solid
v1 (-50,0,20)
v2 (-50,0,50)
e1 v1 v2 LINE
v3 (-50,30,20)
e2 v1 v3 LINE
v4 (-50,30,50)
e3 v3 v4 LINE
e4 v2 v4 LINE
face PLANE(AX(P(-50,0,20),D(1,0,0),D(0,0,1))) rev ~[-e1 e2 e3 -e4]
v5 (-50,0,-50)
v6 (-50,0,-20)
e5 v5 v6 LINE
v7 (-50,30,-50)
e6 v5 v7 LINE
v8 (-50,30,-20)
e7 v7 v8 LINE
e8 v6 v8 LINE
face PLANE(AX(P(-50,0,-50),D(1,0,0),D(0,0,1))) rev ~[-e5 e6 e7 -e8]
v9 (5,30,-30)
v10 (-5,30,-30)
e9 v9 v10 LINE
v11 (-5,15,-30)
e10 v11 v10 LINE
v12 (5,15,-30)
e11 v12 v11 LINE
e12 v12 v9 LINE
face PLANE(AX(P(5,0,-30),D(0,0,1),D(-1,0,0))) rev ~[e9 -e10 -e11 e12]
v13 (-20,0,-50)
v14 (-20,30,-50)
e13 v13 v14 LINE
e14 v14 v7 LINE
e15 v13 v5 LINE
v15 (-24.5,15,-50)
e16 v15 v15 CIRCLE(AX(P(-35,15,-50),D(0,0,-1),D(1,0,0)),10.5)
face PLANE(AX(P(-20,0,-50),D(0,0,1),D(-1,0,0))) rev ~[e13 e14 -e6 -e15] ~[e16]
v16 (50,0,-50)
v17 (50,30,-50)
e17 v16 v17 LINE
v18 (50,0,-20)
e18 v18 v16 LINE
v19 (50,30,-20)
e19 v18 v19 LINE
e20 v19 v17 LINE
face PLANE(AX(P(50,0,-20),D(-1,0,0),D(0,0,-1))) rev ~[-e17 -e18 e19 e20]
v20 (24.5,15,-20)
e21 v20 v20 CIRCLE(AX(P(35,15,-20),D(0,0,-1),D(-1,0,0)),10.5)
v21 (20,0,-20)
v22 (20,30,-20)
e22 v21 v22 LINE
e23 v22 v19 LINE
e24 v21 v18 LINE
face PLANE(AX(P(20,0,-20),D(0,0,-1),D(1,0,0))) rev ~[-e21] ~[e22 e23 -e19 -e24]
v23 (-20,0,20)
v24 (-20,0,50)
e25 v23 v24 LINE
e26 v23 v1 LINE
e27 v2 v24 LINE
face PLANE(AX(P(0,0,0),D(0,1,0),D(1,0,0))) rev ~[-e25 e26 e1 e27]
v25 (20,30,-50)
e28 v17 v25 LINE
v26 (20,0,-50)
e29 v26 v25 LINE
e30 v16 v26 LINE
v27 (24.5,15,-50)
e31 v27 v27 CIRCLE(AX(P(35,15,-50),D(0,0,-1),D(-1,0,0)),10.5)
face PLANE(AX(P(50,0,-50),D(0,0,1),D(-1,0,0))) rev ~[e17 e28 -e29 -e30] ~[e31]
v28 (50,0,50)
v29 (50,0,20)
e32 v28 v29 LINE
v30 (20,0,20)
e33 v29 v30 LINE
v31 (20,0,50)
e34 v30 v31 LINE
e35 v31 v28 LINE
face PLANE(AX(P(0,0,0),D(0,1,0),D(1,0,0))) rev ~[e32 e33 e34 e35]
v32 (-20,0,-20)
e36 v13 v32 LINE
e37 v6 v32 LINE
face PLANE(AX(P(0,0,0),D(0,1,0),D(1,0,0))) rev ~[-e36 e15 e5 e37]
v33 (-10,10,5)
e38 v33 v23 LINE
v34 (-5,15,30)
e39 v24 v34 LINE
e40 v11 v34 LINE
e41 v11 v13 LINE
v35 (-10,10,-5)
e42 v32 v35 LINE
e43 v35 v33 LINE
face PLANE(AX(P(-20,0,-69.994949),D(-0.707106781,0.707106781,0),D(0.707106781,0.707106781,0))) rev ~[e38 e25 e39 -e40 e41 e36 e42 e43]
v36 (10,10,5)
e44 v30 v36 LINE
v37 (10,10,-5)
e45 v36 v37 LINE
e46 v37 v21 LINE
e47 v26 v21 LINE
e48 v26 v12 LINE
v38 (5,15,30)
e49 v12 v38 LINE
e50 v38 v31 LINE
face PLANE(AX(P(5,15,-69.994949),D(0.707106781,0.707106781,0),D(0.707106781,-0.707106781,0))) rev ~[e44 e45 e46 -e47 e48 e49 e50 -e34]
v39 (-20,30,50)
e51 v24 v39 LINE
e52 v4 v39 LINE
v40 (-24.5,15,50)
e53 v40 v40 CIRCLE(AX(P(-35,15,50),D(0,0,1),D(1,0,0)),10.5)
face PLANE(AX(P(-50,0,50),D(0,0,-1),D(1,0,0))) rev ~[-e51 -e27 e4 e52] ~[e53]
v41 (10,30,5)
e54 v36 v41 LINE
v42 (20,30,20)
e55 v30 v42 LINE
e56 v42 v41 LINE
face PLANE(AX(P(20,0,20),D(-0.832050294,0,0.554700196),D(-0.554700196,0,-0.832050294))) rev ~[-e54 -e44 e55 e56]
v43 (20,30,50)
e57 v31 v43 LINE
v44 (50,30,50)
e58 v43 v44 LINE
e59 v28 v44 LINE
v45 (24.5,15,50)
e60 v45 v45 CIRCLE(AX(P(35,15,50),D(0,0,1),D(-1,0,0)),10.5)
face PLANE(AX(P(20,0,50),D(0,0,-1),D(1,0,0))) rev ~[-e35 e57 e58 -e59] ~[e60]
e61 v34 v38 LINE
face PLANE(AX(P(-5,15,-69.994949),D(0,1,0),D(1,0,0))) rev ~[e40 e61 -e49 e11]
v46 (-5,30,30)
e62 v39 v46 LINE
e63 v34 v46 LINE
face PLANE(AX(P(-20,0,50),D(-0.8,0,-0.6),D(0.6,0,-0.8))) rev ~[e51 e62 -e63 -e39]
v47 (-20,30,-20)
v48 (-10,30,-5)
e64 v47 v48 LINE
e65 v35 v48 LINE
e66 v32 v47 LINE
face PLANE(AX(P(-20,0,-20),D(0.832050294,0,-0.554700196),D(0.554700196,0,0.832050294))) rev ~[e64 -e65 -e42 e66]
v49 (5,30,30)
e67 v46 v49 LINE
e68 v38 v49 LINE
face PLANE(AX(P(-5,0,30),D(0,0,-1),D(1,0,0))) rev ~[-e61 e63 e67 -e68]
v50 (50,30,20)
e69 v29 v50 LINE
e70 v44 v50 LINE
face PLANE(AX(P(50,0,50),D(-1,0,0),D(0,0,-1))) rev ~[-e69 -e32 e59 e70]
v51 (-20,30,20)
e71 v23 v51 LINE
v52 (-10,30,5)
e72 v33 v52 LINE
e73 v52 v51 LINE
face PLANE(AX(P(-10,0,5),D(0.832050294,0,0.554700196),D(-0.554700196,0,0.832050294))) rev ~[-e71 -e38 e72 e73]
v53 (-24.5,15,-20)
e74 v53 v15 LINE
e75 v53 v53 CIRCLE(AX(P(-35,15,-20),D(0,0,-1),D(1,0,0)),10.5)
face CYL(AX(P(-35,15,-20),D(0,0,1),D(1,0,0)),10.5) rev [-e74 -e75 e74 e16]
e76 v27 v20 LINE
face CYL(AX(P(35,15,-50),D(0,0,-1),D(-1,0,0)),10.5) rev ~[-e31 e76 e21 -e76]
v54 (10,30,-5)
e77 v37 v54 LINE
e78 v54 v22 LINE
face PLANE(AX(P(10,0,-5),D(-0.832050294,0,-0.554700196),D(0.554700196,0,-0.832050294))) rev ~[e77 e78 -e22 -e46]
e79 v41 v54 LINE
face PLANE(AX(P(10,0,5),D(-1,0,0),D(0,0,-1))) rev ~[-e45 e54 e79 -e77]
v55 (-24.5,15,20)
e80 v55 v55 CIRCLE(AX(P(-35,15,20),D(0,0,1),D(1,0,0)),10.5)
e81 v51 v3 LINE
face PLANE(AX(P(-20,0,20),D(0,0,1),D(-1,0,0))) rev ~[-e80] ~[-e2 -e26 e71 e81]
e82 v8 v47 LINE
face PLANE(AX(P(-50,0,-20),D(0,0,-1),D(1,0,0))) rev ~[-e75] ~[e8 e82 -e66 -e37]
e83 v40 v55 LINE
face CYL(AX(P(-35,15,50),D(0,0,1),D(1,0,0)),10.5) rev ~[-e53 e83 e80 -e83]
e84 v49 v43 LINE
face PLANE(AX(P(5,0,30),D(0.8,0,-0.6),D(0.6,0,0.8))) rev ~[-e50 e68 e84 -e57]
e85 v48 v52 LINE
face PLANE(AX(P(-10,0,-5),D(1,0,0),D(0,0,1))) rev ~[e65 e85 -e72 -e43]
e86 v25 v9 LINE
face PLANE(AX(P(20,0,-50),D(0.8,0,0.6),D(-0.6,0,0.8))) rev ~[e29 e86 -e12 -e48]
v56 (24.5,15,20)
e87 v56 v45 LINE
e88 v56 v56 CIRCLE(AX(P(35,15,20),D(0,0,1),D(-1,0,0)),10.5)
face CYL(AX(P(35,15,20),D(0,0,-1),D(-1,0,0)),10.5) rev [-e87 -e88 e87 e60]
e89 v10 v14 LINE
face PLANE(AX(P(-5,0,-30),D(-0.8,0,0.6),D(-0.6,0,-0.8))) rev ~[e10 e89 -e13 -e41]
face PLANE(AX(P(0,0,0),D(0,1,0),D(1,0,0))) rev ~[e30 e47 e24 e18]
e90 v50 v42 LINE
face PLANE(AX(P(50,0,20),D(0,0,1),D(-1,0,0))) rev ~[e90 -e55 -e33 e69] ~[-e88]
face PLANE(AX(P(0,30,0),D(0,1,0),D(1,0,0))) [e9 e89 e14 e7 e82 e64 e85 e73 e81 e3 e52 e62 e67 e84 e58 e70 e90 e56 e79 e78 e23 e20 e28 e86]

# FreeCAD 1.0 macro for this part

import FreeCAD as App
import Part
import Sketcher

V = App.Vector
Q = App.Units.Quantity

doc = App.newDocument("Part")
body = doc.addObject("PartDesign::Body", "Body")

# Sketch on XZ plane
sketch1 = body.newObject("Sketcher::SketchObject", "Sketch")
sketch1.AttachmentSupport = (doc.getObject("XZ_Plane"), [""])
sketch1.MapMode = "FlatFace"
sketch1.addGeometry([
    Part.LineSegment(V(-20, -50, 0), V(-50, -50, 0)),  # 0
    Part.LineSegment(V(-50, -50, 0), V(-50, -20, 0)),  # 1
    Part.LineSegment(V(-50, -20, 0), V(-20, -20, 0)),  # 2
    Part.LineSegment(V(-20, -20, 0), V(-10, -5, 0)),  # 3
    Part.LineSegment(V(-10, -5, 0), V(-10, 5, 0)),  # 4
    Part.LineSegment(V(-10, 5, 0), V(-20, 20, 0)),  # 5
    Part.LineSegment(V(-20, 20, 0), V(-50, 20, 0)),  # 6
    Part.LineSegment(V(-50, 20, 0), V(-50, 50, 0)),  # 7
    Part.LineSegment(V(-50, 50, 0), V(-20, 50, 0)),  # 8
    Part.LineSegment(V(-20, 50, 0), V(-5, 30, 0)),  # 9
    Part.LineSegment(V(-5, 30, 0), V(5, 30, 0)),  # 10
    Part.LineSegment(V(5, 30, 0), V(20, 50, 0)),  # 11
    Part.LineSegment(V(20, 50, 0), V(50, 50, 0)),  # 12
    Part.LineSegment(V(50, 50, 0), V(50, 20, 0)),  # 13
    Part.LineSegment(V(50, 20, 0), V(20, 20, 0)),  # 14
    Part.LineSegment(V(20, 20, 0), V(10, 5, 0)),  # 15
    Part.LineSegment(V(10, 5, 0), V(10, -5, 0)),  # 16
    Part.LineSegment(V(10, -5, 0), V(20, -20, 0)),  # 17
    Part.LineSegment(V(20, -20, 0), V(50, -20, 0)),  # 18
    Part.LineSegment(V(50, -20, 0), V(50, -50, 0)),  # 19
    Part.LineSegment(V(50, -50, 0), V(20, -50, 0)),  # 20
    Part.LineSegment(V(20, -50, 0), V(5, -30, 0)),  # 21
    Part.LineSegment(V(5, -30, 0), V(-5, -30, 0)),  # 22
    Part.LineSegment(V(-5, -30, 0), V(-20, -50, 0)),  # 23
], False)
sketch1.addConstraint([
    Sketcher.Constraint("Coincident", 0, 2, 1, 1),
    Sketcher.Constraint("Coincident", 1, 2, 2, 1),
    Sketcher.Constraint("Coincident", 2, 2, 3, 1),
    Sketcher.Constraint("Coincident", 3, 2, 4, 1),
    Sketcher.Constraint("Coincident", 4, 2, 5, 1),
    Sketcher.Constraint("Coincident", 5, 2, 6, 1),
    Sketcher.Constraint("Coincident", 6, 2, 7, 1),
    Sketcher.Constraint("Coincident", 7, 2, 8, 1),
    Sketcher.Constraint("Coincident", 8, 2, 9, 1),
    Sketcher.Constraint("Coincident", 9, 2, 10, 1),
    Sketcher.Constraint("Coincident", 10, 2, 11, 1),
    Sketcher.Constraint("Coincident", 11, 2, 12, 1),
    Sketcher.Constraint("Coincident", 12, 2, 13, 1),
    Sketcher.Constraint("Coincident", 13, 2, 14, 1),
    Sketcher.Constraint("Coincident", 14, 2, 15, 1),
    Sketcher.Constraint("Coincident", 15, 2, 16, 1),
    Sketcher.Constraint("Coincident", 16, 2, 17, 1),
    Sketcher.Constraint("Coincident", 17, 2, 18, 1),
    Sketcher.Constraint("Coincident", 18, 2, 19, 1),
    Sketcher.Constraint("Coincident", 19, 2, 20, 1),
    Sketcher.Constraint("Coincident", 20, 2, 21, 1),
    Sketcher.Constraint("Coincident", 21, 2, 22, 1),
    Sketcher.Constraint("Coincident", 22, 2, 23, 1),
    Sketcher.Constraint("Coincident", 23, 2, 0, 1),
    Sketcher.Constraint("Horizontal", 0),
    Sketcher.Constraint("Vertical", 1),
    Sketcher.Constraint("Horizontal", 2),
    Sketcher.Constraint("Vertical", 4),
    Sketcher.Constraint("Horizontal", 6),
    Sketcher.Constraint("Vertical", 7),
    Sketcher.Constraint("Horizontal", 8),
    Sketcher.Constraint("Horizontal", 10),
    Sketcher.Constraint("Horizontal", 12),
    Sketcher.Constraint("Vertical", 13),
    Sketcher.Constraint("Horizontal", 14),
    Sketcher.Constraint("Vertical", 16),
    Sketcher.Constraint("Horizontal", 18),
    Sketcher.Constraint("Vertical", 19),
    Sketcher.Constraint("Horizontal", 20),
    Sketcher.Constraint("Horizontal", 22),
    Sketcher.Constraint("Symmetric", 0, 2, 12, 2, -1, 1),
    Sketcher.Constraint("Symmetric", 2, 2, 14, 2, -1, 1),
    Sketcher.Constraint("Symmetric", 3, 2, 15, 2, -1, 1),
    Sketcher.Constraint("Symmetric", 5, 2, 17, 2, -1, 1),
    Sketcher.Constraint("Symmetric", 7, 2, 19, 2, -1, 1),
    Sketcher.Constraint("Symmetric", 9, 2, 21, 2, -1, 1),
    Sketcher.Constraint("Symmetric", 8, 2, 11, 2, -2),
    Sketcher.Constraint("Symmetric", 6, 2, 13, 2, -2),
    Sketcher.Constraint("Parallel", 5, 17),
    Sketcher.Constraint("Parallel", 9, 21),
    Sketcher.Constraint("Parallel", 11, 23),
    Sketcher.Constraint("Horizontal", 4, 2, 15, 2),
    Sketcher.Constraint("Vertical", 2, 2, 5, 2),
    Sketcher.Constraint("Vertical", 5, 2, 8, 2),
    Sketcher.Constraint("Vertical", 10, 2, 21, 2),
    Sketcher.Constraint("Vertical", 9, 2, 22, 2),
    Sketcher.Constraint("Equal", 20, 1),
    Sketcher.Constraint("Equal", 22, 4),
    Sketcher.Constraint("DistanceX", 0, 2, 0, 1, Q("30 mm")),
    Sketcher.Constraint("DistanceX", 10, 1, 10, 2, Q("10 mm")),
    Sketcher.Constraint("Distance", 9, Q("25 mm")),
    Sketcher.Constraint("DistanceX", 0, 2, -1, 1, Q("50 mm")),
    Sketcher.Constraint("DistanceY", 0, 2, -1, 1, Q("50 mm")),
    Sketcher.Constraint("DistanceX", 3, 2, -1, 1, Q("10 mm")),
])
pad1 = body.newObject("PartDesign::Pad", "Pad")
pad1.Profile = sketch1
pad1.Length = 30
pad1.Reversed = True

# Sketch on XY plane
sketch2 = body.newObject("Sketcher::SketchObject", "Sketch001")
sketch2.AttachmentSupport = (doc.getObject("XY_Plane"), [""])
sketch2.MapMode = "FlatFace"
sketch2.AttachmentOffset = App.Placement(V(0, 0, 50), App.Rotation())
sketch2.addGeometry(Part.Circle(V(-35, 15, 0), V(0, 0, 1), 10), False)
sketch2.addConstraint([
    Sketcher.Constraint("Diameter", 0, Q("21 mm")),
    Sketcher.Constraint("DistanceX", 0, 3, -1, 1, Q("35 mm")),
    Sketcher.Constraint("DistanceY", -1, 1, 0, 3, Q("15 mm")),
])
pocket1 = body.newObject("PartDesign::Pocket", "Pocket")
pocket1.Profile = sketch2
pocket1.Length = 30

# Sketch on XY plane
sketch3 = body.newObject("Sketcher::SketchObject", "Sketch002")
sketch3.AttachmentSupport = (doc.getObject("XY_Plane"), [""])
sketch3.MapMode = "FlatFace"
sketch3.AttachmentOffset = App.Placement(V(0, 0, -20), App.Rotation())
sketch3.addGeometry(Part.Circle(V(-35, 15, 0), V(0, 0, 1), 10), False)
sketch3.addConstraint([
    Sketcher.Constraint("Diameter", 0, Q("21 mm")),
    Sketcher.Constraint("DistanceX", 0, 3, -1, 1, Q("35 mm")),
    Sketcher.Constraint("DistanceY", -1, 1, 0, 3, Q("15 mm")),
])
pocket2 = body.newObject("PartDesign::Pocket", "Pocket001")
pocket2.Profile = sketch3
pocket2.Length = 30

# Sketch on XY plane
sketch4 = body.newObject("Sketcher::SketchObject", "Sketch003")
sketch4.AttachmentSupport = (doc.getObject("XY_Plane"), [""])
sketch4.MapMode = "FlatFace"
sketch4.AttachmentOffset = App.Placement(V(0, 0, -50), App.Rotation())
sketch4.addGeometry(Part.Circle(V(35, 15, 0), V(0, 0, 1), 10), False)
sketch4.addConstraint([
    Sketcher.Constraint("Diameter", 0, Q("21 mm")),
    Sketcher.Constraint("DistanceX", -1, 1, 0, 3, Q("35 mm")),
    Sketcher.Constraint("DistanceY", -1, 1, 0, 3, Q("15 mm")),
])
pocket3 = body.newObject("PartDesign::Pocket", "Pocket002")
pocket3.Profile = sketch4
pocket3.Length = 30
pocket3.Reversed = True

# Sketch on XY plane
sketch5 = body.newObject("Sketcher::SketchObject", "Sketch004")
sketch5.AttachmentSupport = (doc.getObject("XY_Plane"), [""])
sketch5.MapMode = "FlatFace"
sketch5.AttachmentOffset = App.Placement(V(0, 0, 20), App.Rotation())
sketch5.addGeometry(Part.Circle(V(35, 15, 0), V(0, 0, 1), 10), False)
sketch5.addConstraint([
    Sketcher.Constraint("Diameter", 0, Q("21 mm")),
    Sketcher.Constraint("DistanceX", -1, 1, 0, 3, Q("35 mm")),
    Sketcher.Constraint("DistanceY", -1, 1, 0, 3, Q("15 mm")),
])
pocket4 = body.newObject("PartDesign::Pocket", "Pocket003")
pocket4.Profile = sketch5
pocket4.Length = 30
pocket4.Reversed = True

# Sketch on XY plane
sketch6 = body.newObject("Sketcher::SketchObject", "Sketch005")
sketch6.AttachmentSupport = (doc.getObject("XY_Plane"), [""])
sketch6.MapMode = "FlatFace"
sketch6.AttachmentOffset = App.Placement(V(0, 0, 30), App.Rotation())
sketch6.addGeometry([
    Part.LineSegment(V(-5, 15, 0), V(-20, 0, 0)),
    Part.LineSegment(V(-20, 0, 0), V(20, 0, 0)),
    Part.LineSegment(V(20, 0, 0), V(5, 15, 0)),
    Part.LineSegment(V(5, 15, 0), V(-5, 15, 0)),
], False)
sketch6.addConstraint([
    Sketcher.Constraint("Coincident", 0, 2, 1, 1),
    Sketcher.Constraint("Coincident", 1, 2, 2, 1),
    Sketcher.Constraint("Coincident", 2, 2, 3, 1),
    Sketcher.Constraint("Coincident", 3, 2, 0, 1),
    Sketcher.Constraint("Horizontal", 1),
    Sketcher.Constraint("Horizontal", 3),
    Sketcher.Constraint("Symmetric", 0, 2, 1, 2, -1, 1),
    Sketcher.Constraint("Perpendicular", 0, 2),
    Sketcher.Constraint("Equal", 0, 2),
    Sketcher.Constraint("DistanceX", 1, 1, 1, 2, Q("40 mm")),
    Sketcher.Constraint("DistanceX", 3, 2, 3, 1, Q("10 mm")),
])
pocket5 = body.newObject("PartDesign::Pocket", "Pocket004")
pocket5.Profile = sketch6
pocket5.Type = "ThroughAll"
pocket5.Midplane = True

doc.recompute()
